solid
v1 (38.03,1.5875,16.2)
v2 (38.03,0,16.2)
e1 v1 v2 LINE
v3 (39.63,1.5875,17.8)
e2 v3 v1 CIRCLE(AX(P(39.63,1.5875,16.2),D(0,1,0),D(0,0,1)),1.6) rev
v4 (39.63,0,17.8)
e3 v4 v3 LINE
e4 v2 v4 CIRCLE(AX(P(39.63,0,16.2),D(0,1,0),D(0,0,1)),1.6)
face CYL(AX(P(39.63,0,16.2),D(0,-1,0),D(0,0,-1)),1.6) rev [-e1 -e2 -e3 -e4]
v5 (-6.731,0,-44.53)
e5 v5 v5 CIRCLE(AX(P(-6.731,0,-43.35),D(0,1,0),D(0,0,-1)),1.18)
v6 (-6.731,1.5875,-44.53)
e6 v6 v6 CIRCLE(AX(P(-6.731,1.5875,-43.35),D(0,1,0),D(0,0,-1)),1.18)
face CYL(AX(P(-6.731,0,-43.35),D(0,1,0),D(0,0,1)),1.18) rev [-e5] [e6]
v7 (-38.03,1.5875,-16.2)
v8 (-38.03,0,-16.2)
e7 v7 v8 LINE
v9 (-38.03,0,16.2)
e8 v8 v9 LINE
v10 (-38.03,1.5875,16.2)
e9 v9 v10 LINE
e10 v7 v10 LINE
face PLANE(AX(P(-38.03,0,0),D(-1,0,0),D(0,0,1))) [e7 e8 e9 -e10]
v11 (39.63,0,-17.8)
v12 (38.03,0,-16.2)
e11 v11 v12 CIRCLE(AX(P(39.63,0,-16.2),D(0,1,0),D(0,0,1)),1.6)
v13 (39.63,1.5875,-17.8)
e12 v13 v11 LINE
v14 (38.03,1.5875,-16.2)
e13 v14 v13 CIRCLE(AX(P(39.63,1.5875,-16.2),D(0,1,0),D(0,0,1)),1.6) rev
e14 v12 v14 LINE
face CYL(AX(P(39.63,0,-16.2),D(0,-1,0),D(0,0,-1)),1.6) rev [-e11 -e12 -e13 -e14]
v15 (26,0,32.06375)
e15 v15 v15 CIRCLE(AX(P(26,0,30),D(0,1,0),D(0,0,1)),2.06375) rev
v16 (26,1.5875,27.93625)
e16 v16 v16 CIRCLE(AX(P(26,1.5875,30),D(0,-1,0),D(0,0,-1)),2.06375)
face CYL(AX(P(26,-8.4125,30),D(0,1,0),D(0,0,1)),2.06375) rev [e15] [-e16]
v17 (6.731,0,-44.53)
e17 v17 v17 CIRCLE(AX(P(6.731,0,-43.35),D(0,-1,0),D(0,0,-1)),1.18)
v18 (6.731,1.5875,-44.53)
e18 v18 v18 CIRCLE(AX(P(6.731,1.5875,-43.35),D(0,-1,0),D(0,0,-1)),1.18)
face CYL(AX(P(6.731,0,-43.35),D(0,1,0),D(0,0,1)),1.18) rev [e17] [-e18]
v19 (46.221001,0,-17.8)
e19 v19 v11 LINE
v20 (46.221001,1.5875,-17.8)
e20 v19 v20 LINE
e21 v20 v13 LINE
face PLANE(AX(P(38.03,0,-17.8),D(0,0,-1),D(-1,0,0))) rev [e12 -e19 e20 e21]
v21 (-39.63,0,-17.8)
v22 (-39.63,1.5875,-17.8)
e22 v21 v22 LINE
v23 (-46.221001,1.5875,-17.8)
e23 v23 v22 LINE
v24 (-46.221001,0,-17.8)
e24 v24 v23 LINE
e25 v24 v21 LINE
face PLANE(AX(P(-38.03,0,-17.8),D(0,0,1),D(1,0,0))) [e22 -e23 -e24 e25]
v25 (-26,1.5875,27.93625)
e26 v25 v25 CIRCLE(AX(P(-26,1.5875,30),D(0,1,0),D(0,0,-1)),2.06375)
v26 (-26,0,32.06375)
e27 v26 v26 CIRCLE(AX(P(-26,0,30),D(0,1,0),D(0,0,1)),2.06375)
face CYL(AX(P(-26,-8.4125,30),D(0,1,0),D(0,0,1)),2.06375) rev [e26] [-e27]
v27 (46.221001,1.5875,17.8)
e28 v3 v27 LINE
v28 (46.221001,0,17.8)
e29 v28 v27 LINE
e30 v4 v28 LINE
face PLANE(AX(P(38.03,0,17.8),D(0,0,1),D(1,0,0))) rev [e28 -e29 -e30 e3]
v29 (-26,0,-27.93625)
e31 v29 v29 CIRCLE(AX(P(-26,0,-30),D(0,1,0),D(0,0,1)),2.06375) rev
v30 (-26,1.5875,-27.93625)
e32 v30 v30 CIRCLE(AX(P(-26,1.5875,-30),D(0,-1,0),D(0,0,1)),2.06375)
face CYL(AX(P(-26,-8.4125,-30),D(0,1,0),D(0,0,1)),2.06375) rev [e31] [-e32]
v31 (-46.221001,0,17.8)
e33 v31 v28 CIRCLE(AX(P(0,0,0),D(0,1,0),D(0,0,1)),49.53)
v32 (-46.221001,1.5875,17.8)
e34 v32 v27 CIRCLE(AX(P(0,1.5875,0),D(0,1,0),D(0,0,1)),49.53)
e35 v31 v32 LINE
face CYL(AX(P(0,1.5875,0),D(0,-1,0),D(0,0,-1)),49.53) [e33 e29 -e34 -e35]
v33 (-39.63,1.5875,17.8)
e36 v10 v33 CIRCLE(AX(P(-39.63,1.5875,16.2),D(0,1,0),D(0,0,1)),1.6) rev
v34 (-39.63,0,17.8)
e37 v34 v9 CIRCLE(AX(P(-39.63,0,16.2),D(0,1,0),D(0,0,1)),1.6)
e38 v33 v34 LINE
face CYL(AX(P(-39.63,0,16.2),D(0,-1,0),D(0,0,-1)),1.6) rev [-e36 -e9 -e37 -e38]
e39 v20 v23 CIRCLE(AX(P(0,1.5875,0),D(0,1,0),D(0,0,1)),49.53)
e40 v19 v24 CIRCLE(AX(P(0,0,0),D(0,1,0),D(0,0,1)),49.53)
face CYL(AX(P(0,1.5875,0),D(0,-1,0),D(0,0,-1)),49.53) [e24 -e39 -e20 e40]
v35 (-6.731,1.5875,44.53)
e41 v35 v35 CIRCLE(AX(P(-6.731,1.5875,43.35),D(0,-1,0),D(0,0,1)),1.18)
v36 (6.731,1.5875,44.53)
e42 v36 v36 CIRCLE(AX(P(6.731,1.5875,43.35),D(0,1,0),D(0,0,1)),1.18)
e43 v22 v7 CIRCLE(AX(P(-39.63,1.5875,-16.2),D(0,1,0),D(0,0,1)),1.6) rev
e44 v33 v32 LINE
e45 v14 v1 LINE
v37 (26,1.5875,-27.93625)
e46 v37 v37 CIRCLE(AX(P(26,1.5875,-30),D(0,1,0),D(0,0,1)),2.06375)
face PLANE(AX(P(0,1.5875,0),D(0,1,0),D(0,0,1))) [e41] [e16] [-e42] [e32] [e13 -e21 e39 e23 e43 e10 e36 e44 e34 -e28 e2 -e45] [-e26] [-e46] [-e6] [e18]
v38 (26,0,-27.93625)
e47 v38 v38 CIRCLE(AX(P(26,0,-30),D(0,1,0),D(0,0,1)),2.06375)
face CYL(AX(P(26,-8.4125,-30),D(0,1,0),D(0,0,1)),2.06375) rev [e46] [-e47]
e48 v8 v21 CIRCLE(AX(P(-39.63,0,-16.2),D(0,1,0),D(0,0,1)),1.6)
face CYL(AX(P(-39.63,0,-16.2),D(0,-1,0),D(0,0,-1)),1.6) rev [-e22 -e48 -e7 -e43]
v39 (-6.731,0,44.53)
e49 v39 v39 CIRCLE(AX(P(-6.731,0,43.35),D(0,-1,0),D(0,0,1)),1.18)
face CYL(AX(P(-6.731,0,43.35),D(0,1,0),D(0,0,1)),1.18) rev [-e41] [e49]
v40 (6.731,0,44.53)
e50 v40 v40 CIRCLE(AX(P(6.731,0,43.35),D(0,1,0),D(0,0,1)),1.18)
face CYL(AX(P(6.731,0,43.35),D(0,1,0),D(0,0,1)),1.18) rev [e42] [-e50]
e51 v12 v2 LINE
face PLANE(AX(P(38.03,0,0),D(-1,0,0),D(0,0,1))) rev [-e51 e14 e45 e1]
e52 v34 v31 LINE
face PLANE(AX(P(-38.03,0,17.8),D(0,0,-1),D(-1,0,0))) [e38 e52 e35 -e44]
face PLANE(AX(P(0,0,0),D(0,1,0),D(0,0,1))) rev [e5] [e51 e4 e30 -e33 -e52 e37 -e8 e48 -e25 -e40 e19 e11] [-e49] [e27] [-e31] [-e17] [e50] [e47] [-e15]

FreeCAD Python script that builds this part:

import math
import FreeCAD as App
import Part
import Sketcher

V = App.Vector
Q = App.Units.Quantity


def edges_at(feature, points):
    """Names of the edges that pass closest to the given points."""
    edges = feature.Shape.Edges
    near = lambda p: min(range(len(edges)), key=lambda i: edges[i].distToShape(Part.Vertex(*p))[0])
    return sorted({f"Edge{near(p) + 1}" for p in points})

doc = App.newDocument("Part")
params = doc.addObject("Spreadsheet::Sheet", "Params")
for row, (alias, value) in enumerate([
    ("sketch1_diameter", "99.06 mm"),
    ("pad1_length", "1.5875 mm"),
    ("pocket1_length", "10 mm"),
    ("pocket2_length", "10 mm"),
    ("sketch4_radius", "49.53 mm"),
    ("sketch4_height", "35.6 mm"),
    ("fillet_radius", "1.6 mm"),
    ("fillet2_radius", "1.6 mm"),
    ("sketch5_diameter", "2.36 mm"),
    ("sketch6_diameter", "2.36 mm"),
], start=1):
    params.set(f"A{row}", alias)
    params.set(f"B{row}", "=" + value)
    params.setAlias(f"B{row}", alias)

body = doc.addObject("PartDesign::Body", "Body")

# Sketch on XZ plane
sketch1 = doc.addObject("Sketcher::SketchObject", "Sketch")
body.addObject(sketch1)
sketch1.AttachmentSupport = (doc.XZ_Plane, [""])
sketch1.MapMode = "FlatFace"
sketch1.addGeometry(Part.Circle(V(0, 0, 0), V(0, 0, 1), 50), False)
sketch1.addConstraint([
    Sketcher.Constraint("Coincident", 0, 3, -1, 1),
    Sketcher.Constraint("Diameter", 0, Q("99.06 mm")),
])
sketch1.setExpression("Constraints[1]", "Params.sketch1_diameter")
pad1 = doc.addObject("PartDesign::Pad", "Pad")
body.addObject(pad1)
pad1.Profile = sketch1
pad1.setExpression("Length", "Params.pad1_length")
pad1.Reversed = True

# Sketch on XZ plane
sketch2 = doc.addObject("Sketcher::SketchObject", "Sketch001")
body.addObject(sketch2)
sketch2.AttachmentSupport = (doc.XZ_Plane, [""])
sketch2.MapMode = "FlatFace"
sketch2.AttachmentOffset = App.Placement(V(0, 0, -1.5875), App.Rotation())
sketch2.addGeometry(Part.Circle(V(26, -30, 0), V(0, 0, 1), 2.1), False)
sketch2.addConstraint([
    Sketcher.Constraint("DistanceX", -1, 1, 0, 3, Q("26 mm")),
    Sketcher.Constraint("DistanceY", 0, 3, -1, 1, Q("30 mm")),
    Sketcher.Constraint("Diameter", 0, Q("4.1275 mm")),
])
pocket1 = doc.addObject("PartDesign::Pocket", "Pocket")
body.addObject(pocket1)
pocket1.Profile = sketch2
pocket1.setExpression("Length", "Params.pocket1_length")
pocket1.Reversed = True
doc.recompute()

mirrored = doc.addObject("PartDesign::Mirrored", "Mirrored")
body.addObject(mirrored)
mirrored.Originals = [pocket1]
mirrored.MirrorPlane = (doc.YZ_Plane, [""])
body.Tip = mirrored
doc.recompute()

mirrored2 = doc.addObject("PartDesign::Mirrored", "Mirrored001")
body.addObject(mirrored2)
mirrored2.Originals = [pocket1]
mirrored2.MirrorPlane = (doc.XY_Plane, [""])
body.Tip = mirrored2

# Sketch on XZ plane
sketch3 = doc.addObject("Sketcher::SketchObject", "Sketch002")
body.addObject(sketch3)
sketch3.AttachmentSupport = (doc.XZ_Plane, [""])
sketch3.MapMode = "FlatFace"
sketch3.AttachmentOffset = App.Placement(V(0, 0, -1.5875), App.Rotation())
sketch3.addGeometry(Part.Circle(V(-26, 30, 0), V(0, 0, 1), 2.1), False)
sketch3.addConstraint([
    Sketcher.Constraint("DistanceX", 0, 3, -1, 1, Q("26 mm")),
    Sketcher.Constraint("DistanceY", -1, 1, 0, 3, Q("30 mm")),
    Sketcher.Constraint("Diameter", 0, Q("4.1275 mm")),
])
pocket2 = doc.addObject("PartDesign::Pocket", "Pocket001")
body.addObject(pocket2)
pocket2.Profile = sketch3
pocket2.setExpression("Length", "Params.pocket2_length")
pocket2.Reversed = True

# Sketch on XZ plane
sketch4 = doc.addObject("Sketcher::SketchObject", "Sketch003")
body.addObject(sketch4)
sketch4.AttachmentSupport = (doc.XZ_Plane, [""])
sketch4.MapMode = "FlatFace"
sketch4.AttachmentOffset = App.Placement(V(0, 0, -1.5875), App.Rotation())
sketch4.addGeometry([
    Part.LineSegment(V(46, -18, 0), V(38, -18, 0)),
    Part.LineSegment(V(38, -18, 0), V(38, 18, 0)),
    Part.LineSegment(V(38, 18, 0), V(46, 18, 0)),
    Part.ArcOfCircle(Part.Circle(V(0, 0, 0), V(0, 0, 1), 50), math.radians(-21), math.radians(21)),
], False)
sketch4.addConstraint([
    Sketcher.Constraint("Coincident", 0, 2, 1, 1),
    Sketcher.Constraint("Coincident", 1, 2, 2, 1),
    Sketcher.Constraint("Coincident", 2, 2, 3, 2),
    Sketcher.Constraint("Coincident", 3, 1, 0, 1),
    Sketcher.Constraint("Horizontal", 0),
    Sketcher.Constraint("Vertical", 1),
    Sketcher.Constraint("Horizontal", 2),
    Sketcher.Constraint("Coincident", 3, 3, -1, 1),
    Sketcher.Constraint("Vertical", 2, 2, 3, 1),
    Sketcher.Constraint("Radius", 3, Q("49.53 mm")),
    Sketcher.Constraint("DistanceY", 1, 1, 1, 2, Q("35.6 mm")),
    Sketcher.Constraint("DistanceX", 0, 2, 0, 1, Q("8.191001 mm")),
])
sketch4.setExpression("Constraints[9]", "Params.sketch4_radius")
sketch4.setExpression("Constraints[10]", "Params.sketch4_height")
pocket3 = doc.addObject("PartDesign::Pocket", "Pocket002")
body.addObject(pocket3)
pocket3.Profile = sketch4
pocket3.Type = "ThroughAll"
pocket3.Reversed = True
doc.recompute()

fillet = doc.addObject("PartDesign::Fillet", "Fillet")
body.addObject(fillet)
fillet.Base = (pocket3, edges_at(pocket3, [(38.03, 0.794, 17.8), (38.03, 0.794, -17.8)]))
fillet.setExpression("Radius", "Params.fillet_radius")
doc.recompute()

mirrored3 = doc.addObject("PartDesign::Mirrored", "Mirrored002")
body.addObject(mirrored3)
mirrored3.Originals = [pocket3]
mirrored3.MirrorPlane = (doc.YZ_Plane, [""])
body.Tip = mirrored3
doc.recompute()

fillet2 = doc.addObject("PartDesign::Fillet", "Fillet001")
body.addObject(fillet2)
fillet2.Base = (mirrored3, edges_at(mirrored3, [(-38.03, 0.794, 17.8), (-38.03, 0.794, -17.8)]))
fillet2.setExpression("Radius", "Params.fillet2_radius")

# Sketch on XZ plane
sketch5 = doc.addObject("Sketcher::SketchObject", "Sketch004")
body.addObject(sketch5)
sketch5.AttachmentSupport = (doc.XZ_Plane, [""])
sketch5.MapMode = "FlatFace"
sketch5.AttachmentOffset = App.Placement(V(0, 0, -1.5875), App.Rotation())
sketch5.addGeometry(Part.Circle(V(6.7, 43.4, 0), V(0, 0, 1), 1.2), False)
sketch5.addConstraint([
    Sketcher.Constraint("Diameter", 0, Q("2.36 mm")),
    Sketcher.Constraint("DistanceY", -1, 1, 0, 3, Q("43.35 mm")),
    Sketcher.Constraint("DistanceX", -1, 1, 0, 3, Q("6.731 mm")),
])
sketch5.setExpression("Constraints[0]", "Params.sketch5_diameter")
pocket4 = doc.addObject("PartDesign::Pocket", "Pocket003")
body.addObject(pocket4)
pocket4.Profile = sketch5
pocket4.Type = "ThroughAll"
pocket4.Reversed = True
doc.recompute()

mirrored4 = doc.addObject("PartDesign::Mirrored", "Mirrored003")
body.addObject(mirrored4)
mirrored4.Originals = [pocket4]
mirrored4.MirrorPlane = (doc.XY_Plane, [""])
body.Tip = mirrored4
doc.recompute()

mirrored5 = doc.addObject("PartDesign::Mirrored", "Mirrored004")
body.addObject(mirrored5)
mirrored5.Originals = [pocket4]
mirrored5.MirrorPlane = (doc.YZ_Plane, [""])
body.Tip = mirrored5

# Sketch on XZ plane
sketch6 = doc.addObject("Sketcher::SketchObject", "Sketch005")
body.addObject(sketch6)
sketch6.AttachmentSupport = (doc.XZ_Plane, [""])
sketch6.MapMode = "FlatFace"
sketch6.AttachmentOffset = App.Placement(V(0, 0, -1.5875), App.Rotation())
sketch6.addGeometry(Part.Circle(V(-6.7, -43.4, 0), V(0, 0, 1), 1.2), False)
sketch6.addConstraint([
    Sketcher.Constraint("Diameter", 0, Q("2.36 mm")),
    Sketcher.Constraint("DistanceY", 0, 3, -1, 1, Q("43.35 mm")),
    Sketcher.Constraint("DistanceX", 0, 3, -1, 1, Q("6.731 mm")),
])
sketch6.setExpression("Constraints[0]", "Params.sketch6_diameter")
pocket5 = doc.addObject("PartDesign::Pocket", "Pocket004")
body.addObject(pocket5)
pocket5.Profile = sketch6
pocket5.Type = "ThroughAll"
pocket5.Reversed = True

doc.recompute()
